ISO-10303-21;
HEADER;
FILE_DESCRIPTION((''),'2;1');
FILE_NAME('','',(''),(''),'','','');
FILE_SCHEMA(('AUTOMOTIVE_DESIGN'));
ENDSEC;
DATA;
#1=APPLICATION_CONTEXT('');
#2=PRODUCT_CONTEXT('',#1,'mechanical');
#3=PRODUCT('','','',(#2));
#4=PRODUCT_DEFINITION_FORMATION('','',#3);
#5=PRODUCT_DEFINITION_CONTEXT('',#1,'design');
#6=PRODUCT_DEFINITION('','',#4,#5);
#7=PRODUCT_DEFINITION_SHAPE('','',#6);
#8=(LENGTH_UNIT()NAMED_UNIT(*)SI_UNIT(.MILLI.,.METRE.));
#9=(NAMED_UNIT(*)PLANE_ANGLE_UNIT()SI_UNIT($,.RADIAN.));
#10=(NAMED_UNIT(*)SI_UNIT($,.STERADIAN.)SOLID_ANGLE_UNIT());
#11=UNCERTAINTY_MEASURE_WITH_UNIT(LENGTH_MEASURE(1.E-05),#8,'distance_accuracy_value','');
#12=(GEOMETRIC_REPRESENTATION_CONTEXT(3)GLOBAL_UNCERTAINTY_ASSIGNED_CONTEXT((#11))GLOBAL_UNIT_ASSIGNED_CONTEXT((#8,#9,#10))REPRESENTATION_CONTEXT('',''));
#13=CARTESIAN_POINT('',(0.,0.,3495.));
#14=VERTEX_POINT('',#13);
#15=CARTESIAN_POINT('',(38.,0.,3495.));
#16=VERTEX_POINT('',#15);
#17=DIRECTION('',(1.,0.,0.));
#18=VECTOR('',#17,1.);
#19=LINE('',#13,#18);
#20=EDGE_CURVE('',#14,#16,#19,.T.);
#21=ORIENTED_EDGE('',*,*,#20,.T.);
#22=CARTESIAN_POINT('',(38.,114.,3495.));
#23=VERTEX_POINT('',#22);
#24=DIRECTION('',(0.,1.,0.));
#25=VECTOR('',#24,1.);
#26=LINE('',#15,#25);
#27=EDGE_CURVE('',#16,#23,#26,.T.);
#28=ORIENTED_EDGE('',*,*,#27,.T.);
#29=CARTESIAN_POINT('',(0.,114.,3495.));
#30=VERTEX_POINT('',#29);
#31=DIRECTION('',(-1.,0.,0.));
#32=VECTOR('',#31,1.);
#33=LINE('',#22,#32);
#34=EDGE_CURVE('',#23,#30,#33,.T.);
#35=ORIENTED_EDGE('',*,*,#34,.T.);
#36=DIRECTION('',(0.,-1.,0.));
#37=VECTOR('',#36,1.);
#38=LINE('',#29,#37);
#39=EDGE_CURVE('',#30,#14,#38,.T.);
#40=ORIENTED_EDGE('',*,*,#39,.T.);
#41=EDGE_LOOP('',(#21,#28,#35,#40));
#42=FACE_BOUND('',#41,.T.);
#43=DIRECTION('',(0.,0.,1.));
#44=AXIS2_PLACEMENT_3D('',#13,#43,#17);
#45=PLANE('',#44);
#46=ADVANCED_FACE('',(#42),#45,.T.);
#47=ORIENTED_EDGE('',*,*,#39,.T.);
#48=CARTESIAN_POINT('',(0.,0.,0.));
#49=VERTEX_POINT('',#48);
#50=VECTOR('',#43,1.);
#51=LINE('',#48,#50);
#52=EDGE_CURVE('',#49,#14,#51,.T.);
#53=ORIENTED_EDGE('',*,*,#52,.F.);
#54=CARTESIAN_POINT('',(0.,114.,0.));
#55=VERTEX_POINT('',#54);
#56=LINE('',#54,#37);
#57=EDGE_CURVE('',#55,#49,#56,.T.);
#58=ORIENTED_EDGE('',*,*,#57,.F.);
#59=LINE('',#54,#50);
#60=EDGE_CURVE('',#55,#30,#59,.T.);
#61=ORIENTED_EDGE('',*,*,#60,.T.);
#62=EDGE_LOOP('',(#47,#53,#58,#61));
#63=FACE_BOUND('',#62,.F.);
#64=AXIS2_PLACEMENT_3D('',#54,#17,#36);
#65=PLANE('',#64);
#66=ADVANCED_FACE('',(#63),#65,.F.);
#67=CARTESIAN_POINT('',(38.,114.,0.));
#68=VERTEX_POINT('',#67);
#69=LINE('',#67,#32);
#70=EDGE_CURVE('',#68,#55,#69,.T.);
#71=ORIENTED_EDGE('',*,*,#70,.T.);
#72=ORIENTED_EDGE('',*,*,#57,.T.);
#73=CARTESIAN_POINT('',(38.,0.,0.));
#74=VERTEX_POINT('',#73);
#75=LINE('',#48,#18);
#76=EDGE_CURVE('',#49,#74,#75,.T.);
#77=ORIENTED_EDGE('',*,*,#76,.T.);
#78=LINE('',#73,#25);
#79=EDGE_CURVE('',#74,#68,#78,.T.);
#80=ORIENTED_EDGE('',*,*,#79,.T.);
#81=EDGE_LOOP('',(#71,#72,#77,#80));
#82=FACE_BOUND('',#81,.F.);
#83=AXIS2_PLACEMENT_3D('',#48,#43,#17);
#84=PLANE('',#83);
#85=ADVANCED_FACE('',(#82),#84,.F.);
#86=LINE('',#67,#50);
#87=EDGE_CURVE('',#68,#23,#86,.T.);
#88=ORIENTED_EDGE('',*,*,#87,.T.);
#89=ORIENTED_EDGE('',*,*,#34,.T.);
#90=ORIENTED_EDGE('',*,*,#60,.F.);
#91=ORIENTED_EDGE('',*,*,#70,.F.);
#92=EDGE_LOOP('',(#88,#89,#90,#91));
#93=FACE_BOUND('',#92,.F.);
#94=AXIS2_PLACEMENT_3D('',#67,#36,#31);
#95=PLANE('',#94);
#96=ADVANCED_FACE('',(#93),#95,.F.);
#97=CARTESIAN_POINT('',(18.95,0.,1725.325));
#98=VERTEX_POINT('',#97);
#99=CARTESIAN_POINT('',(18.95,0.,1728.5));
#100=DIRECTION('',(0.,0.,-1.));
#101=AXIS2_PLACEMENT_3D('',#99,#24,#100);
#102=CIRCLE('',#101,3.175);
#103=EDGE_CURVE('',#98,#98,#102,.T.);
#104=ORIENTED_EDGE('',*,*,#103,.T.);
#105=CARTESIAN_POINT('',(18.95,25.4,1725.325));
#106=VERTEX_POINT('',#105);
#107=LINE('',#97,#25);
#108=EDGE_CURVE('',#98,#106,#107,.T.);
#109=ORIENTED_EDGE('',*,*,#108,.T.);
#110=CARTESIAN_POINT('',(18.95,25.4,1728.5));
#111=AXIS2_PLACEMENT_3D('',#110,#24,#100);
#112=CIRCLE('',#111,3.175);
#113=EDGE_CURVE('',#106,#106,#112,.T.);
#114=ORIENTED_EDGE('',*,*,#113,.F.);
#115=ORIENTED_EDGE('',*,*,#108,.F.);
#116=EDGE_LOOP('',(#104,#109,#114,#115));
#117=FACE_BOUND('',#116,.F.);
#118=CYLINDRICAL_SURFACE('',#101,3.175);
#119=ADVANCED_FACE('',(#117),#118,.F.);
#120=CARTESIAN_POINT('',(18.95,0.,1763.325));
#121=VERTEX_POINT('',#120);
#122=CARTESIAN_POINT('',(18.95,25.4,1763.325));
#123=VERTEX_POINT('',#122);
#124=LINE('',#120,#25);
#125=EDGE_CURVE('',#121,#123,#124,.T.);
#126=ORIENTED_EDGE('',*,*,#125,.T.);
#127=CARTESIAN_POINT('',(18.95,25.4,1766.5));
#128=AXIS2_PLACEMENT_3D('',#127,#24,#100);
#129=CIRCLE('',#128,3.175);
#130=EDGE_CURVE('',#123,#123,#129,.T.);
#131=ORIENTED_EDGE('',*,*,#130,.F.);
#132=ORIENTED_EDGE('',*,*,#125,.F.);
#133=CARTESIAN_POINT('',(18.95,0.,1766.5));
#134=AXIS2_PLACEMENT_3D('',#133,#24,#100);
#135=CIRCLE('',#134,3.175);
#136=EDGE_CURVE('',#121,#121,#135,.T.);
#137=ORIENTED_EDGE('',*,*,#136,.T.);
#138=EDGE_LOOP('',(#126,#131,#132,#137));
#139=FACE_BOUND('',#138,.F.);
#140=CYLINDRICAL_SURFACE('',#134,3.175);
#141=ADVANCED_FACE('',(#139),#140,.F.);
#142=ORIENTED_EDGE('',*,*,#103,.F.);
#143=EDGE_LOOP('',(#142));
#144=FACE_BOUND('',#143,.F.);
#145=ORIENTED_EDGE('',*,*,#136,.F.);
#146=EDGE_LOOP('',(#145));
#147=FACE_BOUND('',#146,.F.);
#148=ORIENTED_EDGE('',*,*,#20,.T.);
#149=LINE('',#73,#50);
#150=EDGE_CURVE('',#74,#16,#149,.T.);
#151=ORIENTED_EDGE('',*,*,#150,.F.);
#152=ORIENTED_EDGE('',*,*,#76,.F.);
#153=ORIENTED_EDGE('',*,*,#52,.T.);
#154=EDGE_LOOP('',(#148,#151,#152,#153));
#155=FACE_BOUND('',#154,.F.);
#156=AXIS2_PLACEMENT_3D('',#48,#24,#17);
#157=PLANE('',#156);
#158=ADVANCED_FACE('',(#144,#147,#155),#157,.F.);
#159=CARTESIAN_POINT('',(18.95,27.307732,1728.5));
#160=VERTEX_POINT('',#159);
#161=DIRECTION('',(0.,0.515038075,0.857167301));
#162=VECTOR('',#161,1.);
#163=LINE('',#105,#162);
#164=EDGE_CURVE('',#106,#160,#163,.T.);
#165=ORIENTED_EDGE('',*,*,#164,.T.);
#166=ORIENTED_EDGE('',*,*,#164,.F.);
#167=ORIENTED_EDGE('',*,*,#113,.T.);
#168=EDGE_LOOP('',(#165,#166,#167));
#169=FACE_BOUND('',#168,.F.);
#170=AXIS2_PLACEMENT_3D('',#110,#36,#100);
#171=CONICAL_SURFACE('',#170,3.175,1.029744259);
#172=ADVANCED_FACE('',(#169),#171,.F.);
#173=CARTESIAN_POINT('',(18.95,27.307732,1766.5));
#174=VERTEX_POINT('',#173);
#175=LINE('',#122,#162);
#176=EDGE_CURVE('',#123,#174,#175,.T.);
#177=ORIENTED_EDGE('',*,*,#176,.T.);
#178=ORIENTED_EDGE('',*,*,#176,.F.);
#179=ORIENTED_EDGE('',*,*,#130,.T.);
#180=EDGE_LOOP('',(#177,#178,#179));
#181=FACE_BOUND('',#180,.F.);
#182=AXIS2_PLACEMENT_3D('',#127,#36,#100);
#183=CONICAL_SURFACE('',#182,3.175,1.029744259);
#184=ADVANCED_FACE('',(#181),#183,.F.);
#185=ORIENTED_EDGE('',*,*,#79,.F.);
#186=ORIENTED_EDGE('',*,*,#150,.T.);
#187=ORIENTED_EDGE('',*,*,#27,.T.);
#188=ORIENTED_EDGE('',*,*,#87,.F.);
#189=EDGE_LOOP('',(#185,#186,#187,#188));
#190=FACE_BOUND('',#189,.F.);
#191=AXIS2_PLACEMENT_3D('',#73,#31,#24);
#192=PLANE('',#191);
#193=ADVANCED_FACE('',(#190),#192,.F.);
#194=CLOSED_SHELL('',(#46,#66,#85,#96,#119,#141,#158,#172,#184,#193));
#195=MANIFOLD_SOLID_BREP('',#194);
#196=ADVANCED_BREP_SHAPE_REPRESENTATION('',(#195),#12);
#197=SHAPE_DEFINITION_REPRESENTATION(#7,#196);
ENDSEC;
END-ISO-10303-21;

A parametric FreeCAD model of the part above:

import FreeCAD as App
import Part
import Sketcher


def add_polygon(sketch, points):
    """Adds a closed chain of lines whose ends are joined by coincident constraints."""
    first, n = sketch.GeometryCount, len(points)
    for a, b in zip(points, points[1:] + points[:1]):
        sketch.addGeometry(Part.LineSegment(App.Vector(*a, 0), App.Vector(*b, 0)), False)
    for i in range(n):
        sketch.addConstraint(Sketcher.Constraint("Coincident", first + i, 2, first + (i + 1) % n, 1))

doc = App.newDocument("Part")
body = doc.addObject("PartDesign::Body", "Body")

sketch1 = body.newObject("Sketcher::SketchObject", "Sketch")
sketch1.AttachmentSupport = (doc.getObject("XY_Plane"), [""])
sketch1.MapMode = "FlatFace"
add_polygon(sketch1, [(0, 114), (0, 0), (38, 0), (38, 114)])
sketch1.addConstraint([
    Sketcher.Constraint("Vertical", 0),
    Sketcher.Constraint("Horizontal", 1),
    Sketcher.Constraint("Vertical", 2),
    Sketcher.Constraint("Horizontal", 3),
    Sketcher.Constraint("Coincident", 0, 2, -1, 1),
    Sketcher.Constraint("DistanceX", 1, 1, 1, 2, 38.0),
    Sketcher.Constraint("DistanceY", 0, 2, 0, 1, 114.0),
])
pad1 = body.newObject("PartDesign::Pad", "Pad")
pad1.Profile = sketch1
pad1.Length = 3495

sketch2 = body.newObject("Sketcher::SketchObject", "Sketch001")
sketch2.AttachmentSupport = (doc.getObject("XZ_Plane"), [""])
sketch2.MapMode = "FlatFace"
sketch2.addGeometry([
    Part.Circle(App.Vector(18.9, 1766.5, 0), App.Vector(0, 0, 1), 3.2),
    Part.Circle(App.Vector(18.9, 1728.5, 0), App.Vector(0, 0, 1), 3.2),
], False)
sketch2.addConstraint([
    Sketcher.Constraint("Equal", 0, 1),
    Sketcher.Constraint("Vertical", 0, 3, 1, 3),
    Sketcher.Constraint("Diameter", 0, 6.35),
    Sketcher.Constraint("DistanceY", 1, 3, 0, 3, 38.0),
    Sketcher.Constraint("DistanceY", -1, 1, 0, 3, 1766.5),
    Sketcher.Constraint("DistanceX", -1, 1, 0, 3, 18.95),
])
doc.recompute()
hole = body.newObject("PartDesign::Hole", "Hole")
hole.Profile = sketch2
hole.ThreadType = "None"
hole.Diameter = 6.35
hole.DepthType = "Dimension"
hole.Depth = 25.4
hole.DrillPoint = "Angled"
hole.DrillPointAngle = 118

doc.recompute()
